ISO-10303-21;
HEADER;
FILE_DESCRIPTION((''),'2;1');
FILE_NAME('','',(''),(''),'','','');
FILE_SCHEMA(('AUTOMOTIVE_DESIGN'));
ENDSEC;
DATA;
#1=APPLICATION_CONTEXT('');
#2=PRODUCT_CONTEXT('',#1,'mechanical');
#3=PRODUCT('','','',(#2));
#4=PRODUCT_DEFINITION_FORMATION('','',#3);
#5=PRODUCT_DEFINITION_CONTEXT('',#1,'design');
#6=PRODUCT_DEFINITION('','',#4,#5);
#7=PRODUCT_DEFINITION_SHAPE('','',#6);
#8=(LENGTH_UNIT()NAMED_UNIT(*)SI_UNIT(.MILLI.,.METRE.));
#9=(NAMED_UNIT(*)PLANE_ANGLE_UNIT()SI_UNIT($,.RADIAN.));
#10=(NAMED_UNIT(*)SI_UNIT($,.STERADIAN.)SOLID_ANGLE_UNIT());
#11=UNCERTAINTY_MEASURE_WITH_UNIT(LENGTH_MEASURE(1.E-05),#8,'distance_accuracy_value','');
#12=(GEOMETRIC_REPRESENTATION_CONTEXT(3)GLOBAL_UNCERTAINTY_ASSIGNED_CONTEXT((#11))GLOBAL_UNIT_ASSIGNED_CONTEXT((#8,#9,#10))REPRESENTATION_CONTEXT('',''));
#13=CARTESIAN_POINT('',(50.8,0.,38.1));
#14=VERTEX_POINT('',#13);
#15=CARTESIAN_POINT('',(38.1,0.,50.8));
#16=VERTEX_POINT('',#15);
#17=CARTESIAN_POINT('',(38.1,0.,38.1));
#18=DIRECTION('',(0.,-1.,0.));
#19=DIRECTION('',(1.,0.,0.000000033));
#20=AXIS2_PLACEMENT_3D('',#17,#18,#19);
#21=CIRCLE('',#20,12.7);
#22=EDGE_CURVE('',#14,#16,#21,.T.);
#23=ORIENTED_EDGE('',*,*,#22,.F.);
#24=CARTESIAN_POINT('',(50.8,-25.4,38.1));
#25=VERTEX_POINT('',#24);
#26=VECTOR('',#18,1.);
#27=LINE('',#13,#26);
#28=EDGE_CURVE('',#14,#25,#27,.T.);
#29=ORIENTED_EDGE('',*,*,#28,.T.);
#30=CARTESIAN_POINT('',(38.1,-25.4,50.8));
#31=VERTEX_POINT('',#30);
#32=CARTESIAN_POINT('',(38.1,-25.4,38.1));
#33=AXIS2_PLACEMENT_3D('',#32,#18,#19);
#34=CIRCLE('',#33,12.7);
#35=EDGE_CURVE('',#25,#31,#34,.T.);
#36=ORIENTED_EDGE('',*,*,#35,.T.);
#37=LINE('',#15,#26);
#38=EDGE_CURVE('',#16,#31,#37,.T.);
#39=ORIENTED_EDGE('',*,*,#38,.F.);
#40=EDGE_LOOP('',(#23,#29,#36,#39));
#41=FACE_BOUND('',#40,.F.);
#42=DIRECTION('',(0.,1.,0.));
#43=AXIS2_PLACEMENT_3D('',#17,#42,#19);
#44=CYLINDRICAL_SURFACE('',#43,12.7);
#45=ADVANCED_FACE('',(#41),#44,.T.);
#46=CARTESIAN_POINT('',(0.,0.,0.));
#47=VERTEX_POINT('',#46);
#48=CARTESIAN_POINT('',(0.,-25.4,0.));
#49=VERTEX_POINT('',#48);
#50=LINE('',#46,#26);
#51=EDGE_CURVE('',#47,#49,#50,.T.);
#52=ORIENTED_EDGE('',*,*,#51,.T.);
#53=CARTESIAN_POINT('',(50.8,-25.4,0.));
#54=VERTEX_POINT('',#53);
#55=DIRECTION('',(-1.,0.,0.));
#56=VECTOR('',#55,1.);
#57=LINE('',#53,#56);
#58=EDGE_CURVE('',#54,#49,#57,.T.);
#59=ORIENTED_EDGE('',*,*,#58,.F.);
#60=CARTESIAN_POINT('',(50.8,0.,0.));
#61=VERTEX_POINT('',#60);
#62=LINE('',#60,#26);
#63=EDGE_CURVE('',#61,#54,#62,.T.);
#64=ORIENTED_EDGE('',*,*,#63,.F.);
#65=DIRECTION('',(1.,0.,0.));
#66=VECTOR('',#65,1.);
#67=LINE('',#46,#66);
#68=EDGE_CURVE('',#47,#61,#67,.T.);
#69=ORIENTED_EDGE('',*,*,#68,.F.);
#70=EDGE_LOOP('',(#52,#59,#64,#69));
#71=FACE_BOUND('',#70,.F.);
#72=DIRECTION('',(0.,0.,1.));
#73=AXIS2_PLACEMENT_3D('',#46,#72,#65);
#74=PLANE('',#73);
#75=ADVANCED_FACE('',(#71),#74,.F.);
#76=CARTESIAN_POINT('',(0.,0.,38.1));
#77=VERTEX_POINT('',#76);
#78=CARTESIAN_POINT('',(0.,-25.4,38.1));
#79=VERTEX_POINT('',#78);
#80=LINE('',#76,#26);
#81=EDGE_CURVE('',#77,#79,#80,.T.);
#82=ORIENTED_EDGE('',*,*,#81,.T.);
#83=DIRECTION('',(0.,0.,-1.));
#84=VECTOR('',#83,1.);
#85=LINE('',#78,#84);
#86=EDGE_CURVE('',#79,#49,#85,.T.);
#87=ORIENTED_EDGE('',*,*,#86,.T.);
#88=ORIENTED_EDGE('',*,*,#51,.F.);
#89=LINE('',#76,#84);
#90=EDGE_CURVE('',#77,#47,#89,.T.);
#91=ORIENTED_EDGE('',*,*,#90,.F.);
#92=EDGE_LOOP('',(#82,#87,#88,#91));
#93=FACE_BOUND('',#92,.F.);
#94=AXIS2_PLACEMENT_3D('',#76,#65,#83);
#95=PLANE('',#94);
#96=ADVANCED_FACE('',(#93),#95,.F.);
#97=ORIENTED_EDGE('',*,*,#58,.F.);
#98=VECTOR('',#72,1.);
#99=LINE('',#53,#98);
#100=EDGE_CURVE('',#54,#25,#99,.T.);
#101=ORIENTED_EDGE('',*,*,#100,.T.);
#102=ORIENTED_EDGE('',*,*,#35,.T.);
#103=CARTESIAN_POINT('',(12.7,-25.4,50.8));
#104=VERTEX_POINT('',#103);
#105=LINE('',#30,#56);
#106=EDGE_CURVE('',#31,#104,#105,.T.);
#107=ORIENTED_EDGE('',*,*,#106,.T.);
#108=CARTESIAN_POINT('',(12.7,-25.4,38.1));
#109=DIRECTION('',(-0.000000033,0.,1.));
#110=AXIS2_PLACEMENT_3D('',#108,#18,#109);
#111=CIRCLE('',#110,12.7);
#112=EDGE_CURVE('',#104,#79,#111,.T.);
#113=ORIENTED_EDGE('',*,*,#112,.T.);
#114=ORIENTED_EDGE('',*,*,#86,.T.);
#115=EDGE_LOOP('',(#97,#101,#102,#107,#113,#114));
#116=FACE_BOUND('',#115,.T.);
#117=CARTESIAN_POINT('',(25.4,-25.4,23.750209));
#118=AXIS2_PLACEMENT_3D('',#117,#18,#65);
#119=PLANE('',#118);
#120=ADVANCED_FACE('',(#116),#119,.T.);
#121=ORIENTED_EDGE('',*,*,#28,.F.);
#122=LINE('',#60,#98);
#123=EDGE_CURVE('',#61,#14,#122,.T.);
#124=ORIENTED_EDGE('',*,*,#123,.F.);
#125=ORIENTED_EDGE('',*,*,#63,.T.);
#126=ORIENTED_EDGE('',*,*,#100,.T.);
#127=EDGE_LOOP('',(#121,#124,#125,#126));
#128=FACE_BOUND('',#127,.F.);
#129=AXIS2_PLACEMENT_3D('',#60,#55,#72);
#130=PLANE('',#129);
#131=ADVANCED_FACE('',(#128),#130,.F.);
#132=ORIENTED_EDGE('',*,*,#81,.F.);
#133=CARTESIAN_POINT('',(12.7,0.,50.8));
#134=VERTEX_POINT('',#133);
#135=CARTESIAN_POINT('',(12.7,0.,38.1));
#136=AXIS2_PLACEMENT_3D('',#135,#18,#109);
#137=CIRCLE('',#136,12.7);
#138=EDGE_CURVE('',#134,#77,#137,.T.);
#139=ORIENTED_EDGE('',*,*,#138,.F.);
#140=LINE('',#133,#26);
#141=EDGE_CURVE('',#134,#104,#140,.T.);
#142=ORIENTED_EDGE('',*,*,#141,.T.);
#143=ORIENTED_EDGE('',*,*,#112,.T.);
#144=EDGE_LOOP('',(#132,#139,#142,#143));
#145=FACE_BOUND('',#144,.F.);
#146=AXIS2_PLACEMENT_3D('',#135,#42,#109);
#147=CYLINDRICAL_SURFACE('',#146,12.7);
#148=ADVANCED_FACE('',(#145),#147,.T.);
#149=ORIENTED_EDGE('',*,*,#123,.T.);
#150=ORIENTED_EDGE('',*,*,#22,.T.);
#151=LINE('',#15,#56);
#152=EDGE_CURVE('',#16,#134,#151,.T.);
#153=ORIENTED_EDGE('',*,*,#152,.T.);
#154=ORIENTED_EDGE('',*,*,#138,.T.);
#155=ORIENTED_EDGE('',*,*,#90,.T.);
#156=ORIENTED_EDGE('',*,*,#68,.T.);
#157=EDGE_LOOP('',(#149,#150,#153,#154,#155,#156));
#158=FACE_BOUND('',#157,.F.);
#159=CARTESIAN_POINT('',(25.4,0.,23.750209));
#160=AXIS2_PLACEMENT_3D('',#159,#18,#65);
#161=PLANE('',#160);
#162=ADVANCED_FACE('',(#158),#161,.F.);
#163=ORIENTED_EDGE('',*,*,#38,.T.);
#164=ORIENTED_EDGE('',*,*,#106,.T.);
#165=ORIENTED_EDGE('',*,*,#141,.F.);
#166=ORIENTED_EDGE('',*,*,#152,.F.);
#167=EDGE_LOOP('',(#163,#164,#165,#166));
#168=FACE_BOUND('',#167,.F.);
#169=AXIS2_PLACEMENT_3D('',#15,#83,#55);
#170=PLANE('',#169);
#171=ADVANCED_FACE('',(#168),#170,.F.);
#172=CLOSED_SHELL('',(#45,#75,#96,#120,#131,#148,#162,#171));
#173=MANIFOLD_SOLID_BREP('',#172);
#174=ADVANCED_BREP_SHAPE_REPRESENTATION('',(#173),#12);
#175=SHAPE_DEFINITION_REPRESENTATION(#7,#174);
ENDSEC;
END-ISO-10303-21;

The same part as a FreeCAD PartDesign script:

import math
import FreeCAD as App
import Part
import Sketcher
from FreeCAD import Vector
Q = App.Units.Quantity

doc = App.newDocument("Part")
params = doc.addObject("Spreadsheet::Sheet", "Params")
for row, (alias, value) in enumerate([
    ("sketch1_radius", "0.5 in"),
    ("sketch1_width", "2 in"),
    ("sketch1_height", "1.5 in"),
    ("pad1_length", "1 in"),
    ("pad2_length", "1 in"),
], start=1):
    params.set(f"A{row}", alias)
    params.set(f"B{row}", "=" + value)
    params.setAlias(f"B{row}", alias)

body = doc.addObject("PartDesign::Body", "Body")

# Sketch on XZ plane
sketch1 = doc.addObject("Sketcher::SketchObject", "Sketch")
body.addObject(sketch1)
sketch1.AttachmentSupport = (doc.XZ_Plane, [""])
sketch1.MapMode = "FlatFace"
sketch1.addGeometry([
    Part.LineSegment(Vector(0, 38.1, 0), Vector(0, 0, 0)),  # 0
    Part.LineSegment(Vector(0, 0, 0), Vector(50.8, 0, 0)),  # 1
    Part.LineSegment(Vector(50.8, 0, 0), Vector(50.8, 38.1, 0)),  # 2
    Part.ArcOfCircle(Part.Circle(Vector(38.1, 38.1, 0), Vector(0, 0, 1), 12.7), math.radians(0.000002), math.radians(89.999998)),  # 3
    Part.LineSegment(Vector(38.1, 50.8, 0), Vector(12.7, 50.8, 0)),  # 4
    Part.ArcOfCircle(Part.Circle(Vector(12.7, 38.1, 0), Vector(0, 0, 1), 12.7), math.radians(90.000002), math.radians(179.999998)),  # 5
], False)
sketch1.addConstraint([
    Sketcher.Constraint("Coincident", 0, 2, 1, 1),
    Sketcher.Constraint("Coincident", 1, 2, 2, 1),
    Sketcher.Constraint("Tangent", 2, 2, 3, 1),
    Sketcher.Constraint("Tangent", 3, 2, 4, 1),
    Sketcher.Constraint("Tangent", 4, 2, 5, 1),
    Sketcher.Constraint("Tangent", 5, 2, 0, 1),
    Sketcher.Constraint("Vertical", 0),
    Sketcher.Constraint("Horizontal", 1),
    Sketcher.Constraint("Vertical", 2),
    Sketcher.Constraint("Horizontal", 4),
    Sketcher.Constraint("Coincident", 0, 2, -1, 1),
    Sketcher.Constraint("Equal", 3, 5),
    Sketcher.Constraint("Radius", 3, Q("0.5 in")),
    Sketcher.Constraint("DistanceX", 1, 1, 1, 2, Q("2 in")),
    Sketcher.Constraint("DistanceY", 0, 2, 0, 1, Q("1.5 in")),
])
sketch1.setExpression("Constraints[12]", "Params.sketch1_radius")
sketch1.setExpression("Constraints[13]", "Params.sketch1_width")
sketch1.setExpression("Constraints[14]", "Params.sketch1_height")
pad1 = doc.addObject("PartDesign::Pad", "Pad")
body.addObject(pad1)
pad1.Profile = sketch1
pad1.setExpression("Length", "Params.pad1_length")

# Sketch on XZ plane
sketch2 = doc.addObject("Sketcher::SketchObject", "Sketch001")
body.addObject(sketch2)
sketch2.AttachmentSupport = (doc.XZ_Plane, [""])
sketch2.MapMode = "FlatFace"
sketch2.addGeometry([
    Part.LineSegment(Vector(17.737616, 7.724446, 0), Vector(17.737616, 0, 0)),  # 0
    Part.LineSegment(Vector(17.737616, 0, 0), Vector(39.861955, 0, 0)),  # 1
    Part.LineSegment(Vector(39.861955, 0, 0), Vector(39.861955, 7.724446, 0)),  # 2
    Part.LineSegment(Vector(39.861955, 7.724446, 0), Vector(30.707058, 7.724446, 0)),  # 3
    Part.LineSegment(Vector(30.707058, 7.724446, 0), Vector(30.707058, 12.492622, 0)),  # 4
    Part.LineSegment(Vector(30.707058, 12.492622, 0), Vector(23.459429, 12.492622, 0)),  # 5
    Part.LineSegment(Vector(23.459429, 12.492622, 0), Vector(23.459429, 7.724446, 0)),  # 6
    Part.LineSegment(Vector(23.459429, 7.724446, 0), Vector(17.737616, 7.724446, 0)),  # 7
], False)
sketch2.addConstraint([
    Sketcher.Constraint("Coincident", 0, 2, 1, 1),
    Sketcher.Constraint("Coincident", 1, 2, 2, 1),
    Sketcher.Constraint("Coincident", 2, 2, 3, 1),
    Sketcher.Constraint("Coincident", 3, 2, 4, 1),
    Sketcher.Constraint("Coincident", 4, 2, 5, 1),
    Sketcher.Constraint("Coincident", 5, 2, 6, 1),
    Sketcher.Constraint("Coincident", 6, 2, 7, 1),
    Sketcher.Constraint("Coincident", 7, 2, 0, 1),
    Sketcher.Constraint("Vertical", 0),
    Sketcher.Constraint("Horizontal", 1),
    Sketcher.Constraint("Vertical", 2),
    Sketcher.Constraint("Horizontal", 3),
    Sketcher.Constraint("Vertical", 4),
    Sketcher.Constraint("Horizontal", 5),
    Sketcher.Constraint("Vertical", 6),
    Sketcher.Constraint("Horizontal", 7),
    Sketcher.Constraint("PointOnObject", 0, 2, -1),
    Sketcher.Constraint("Horizontal", 3, 2, 6, 2),
    Sketcher.Constraint("DistanceX", 1, 1, 1, 2, 22.124339),
    Sketcher.Constraint("DistanceX", 5, 2, 5, 1, 7.247629),
    Sketcher.Constraint("DistanceX", 3, 2, 3, 1, 9.154897),
    Sketcher.Constraint("DistanceY", 0, 2, 0, 1, 7.724446),
    Sketcher.Constraint("DistanceY", 4, 1, 4, 2, 4.768176),
    Sketcher.Constraint("DistanceX", -1, 1, 3, 2, 30.707058),
])
pad2 = doc.addObject("PartDesign::Pad", "Pad001")
body.addObject(pad2)
pad2.Profile = sketch2
pad2.setExpression("Length", "Params.pad2_length")

doc.recompute()
